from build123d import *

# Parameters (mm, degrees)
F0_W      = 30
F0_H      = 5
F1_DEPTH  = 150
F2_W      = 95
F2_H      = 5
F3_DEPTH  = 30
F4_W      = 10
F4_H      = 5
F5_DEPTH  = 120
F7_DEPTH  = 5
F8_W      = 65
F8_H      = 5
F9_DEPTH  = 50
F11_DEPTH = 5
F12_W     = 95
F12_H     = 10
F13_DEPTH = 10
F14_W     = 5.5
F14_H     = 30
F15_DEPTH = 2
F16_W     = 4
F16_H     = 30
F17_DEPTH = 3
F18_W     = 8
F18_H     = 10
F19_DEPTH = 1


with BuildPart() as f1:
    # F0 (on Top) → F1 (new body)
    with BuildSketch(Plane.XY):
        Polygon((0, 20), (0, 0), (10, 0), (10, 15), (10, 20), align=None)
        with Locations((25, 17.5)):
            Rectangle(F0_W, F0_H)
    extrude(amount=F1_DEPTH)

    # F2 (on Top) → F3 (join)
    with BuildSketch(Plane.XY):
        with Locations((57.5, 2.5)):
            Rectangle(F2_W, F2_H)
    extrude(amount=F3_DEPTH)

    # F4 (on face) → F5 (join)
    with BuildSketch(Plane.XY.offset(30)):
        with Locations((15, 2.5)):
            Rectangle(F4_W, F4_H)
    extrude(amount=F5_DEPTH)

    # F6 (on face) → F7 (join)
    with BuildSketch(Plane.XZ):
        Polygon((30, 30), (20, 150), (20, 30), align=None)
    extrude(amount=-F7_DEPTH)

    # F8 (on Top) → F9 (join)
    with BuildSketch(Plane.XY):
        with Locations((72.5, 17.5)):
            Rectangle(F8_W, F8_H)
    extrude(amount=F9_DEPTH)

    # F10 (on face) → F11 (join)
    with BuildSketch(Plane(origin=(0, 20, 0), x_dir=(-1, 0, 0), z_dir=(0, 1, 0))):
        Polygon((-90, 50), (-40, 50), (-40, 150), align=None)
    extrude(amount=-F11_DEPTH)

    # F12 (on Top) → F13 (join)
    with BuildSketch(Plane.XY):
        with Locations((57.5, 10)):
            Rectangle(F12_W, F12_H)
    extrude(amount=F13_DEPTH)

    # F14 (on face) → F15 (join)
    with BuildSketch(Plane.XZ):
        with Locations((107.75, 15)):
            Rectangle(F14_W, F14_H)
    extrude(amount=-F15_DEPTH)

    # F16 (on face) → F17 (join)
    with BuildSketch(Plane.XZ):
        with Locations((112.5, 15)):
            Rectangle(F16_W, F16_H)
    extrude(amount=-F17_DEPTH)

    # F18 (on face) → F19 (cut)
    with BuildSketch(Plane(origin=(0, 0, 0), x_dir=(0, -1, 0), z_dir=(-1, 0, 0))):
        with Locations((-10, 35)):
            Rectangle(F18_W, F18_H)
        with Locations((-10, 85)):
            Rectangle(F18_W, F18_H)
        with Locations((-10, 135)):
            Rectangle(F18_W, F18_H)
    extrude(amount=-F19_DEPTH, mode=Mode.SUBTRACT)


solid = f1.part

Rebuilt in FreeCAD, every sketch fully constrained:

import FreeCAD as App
import Part
import Sketcher
Q = App.Units.Quantity


def add_polygon(sketch, points):
    """Adds a closed chain of lines whose ends are joined by coincident constraints."""
    first, n = sketch.GeometryCount, len(points)
    for a, b in zip(points, points[1:] + points[:1]):
        sketch.addGeometry(Part.LineSegment(App.Vector(*a, 0), App.Vector(*b, 0)), False)
    for i in range(n):
        sketch.addConstraint(Sketcher.Constraint("Coincident", first + i, 2, first + (i + 1) % n, 1))

doc = App.newDocument("Part")
params = doc.addObject("Spreadsheet::Sheet", "Params")
for row, (alias, value) in enumerate([
    ("sketch1_width", "10 mm"),
    ("sketch1_width2", "30 mm"),
    ("sketch1_height", "20 mm"),
    ("sketch1_height2", "15 mm"),
    ("pad1_length", "150 mm"),
    ("sketch2_width", "95 mm"),
    ("sketch2_height", "5 mm"),
    ("pad2_length", "30 mm"),
    ("sketch3_width", "10 mm"),
    ("sketch3_height", "5 mm"),
    ("pad3_length", "120 mm"),
    ("sketch4_width", "10 mm"),
    ("sketch4_height", "120 mm"),
    ("pad4_length", "5 mm"),
    ("sketch5_width", "65 mm"),
    ("sketch5_height", "5 mm"),
    ("pad5_length", "50 mm"),
    ("sketch6_width", "50 mm"),
    ("sketch6_height", "100 mm"),
    ("pad6_length", "5 mm"),
    ("sketch7_width", "95 mm"),
    ("sketch7_height", "10 mm"),
    ("pad7_length", "10 mm"),
    ("sketch8_height", "30 mm"),
    ("sketch8_width", "5.5 mm"),
    ("pad8_length", "2 mm"),
    ("sketch9_width", "4 mm"),
    ("sketch9_height", "30 mm"),
    ("pad9_length", "3 mm"),
    ("sketch10_width", "8 mm"),
    ("sketch10_height", "10 mm"),
    ("pocket1_length", "1 mm"),
], start=1):
    params.set(f"A{row}", alias)
    params.set(f"B{row}", "=" + value)
    params.setAlias(f"B{row}", alias)

body = doc.addObject("PartDesign::Body", "Body")

sketch1 = doc.addObject("Sketcher::SketchObject", "Sketch")
body.addObject(sketch1)
sketch1.AttachmentSupport = (doc.XY_Plane, [""])
sketch1.MapMode = "FlatFace"
add_polygon(sketch1, [(0, 20), (0, 0), (10, 0), (10, 15), (40, 15), (40, 20)])
sketch1.addConstraint(Sketcher.Constraint("Vertical", 0))
sketch1.addConstraint(Sketcher.Constraint("Horizontal", 1))
sketch1.addConstraint(Sketcher.Constraint("Vertical", 2))
sketch1.addConstraint(Sketcher.Constraint("Horizontal", 3))
sketch1.addConstraint(Sketcher.Constraint("Vertical", 4))
sketch1.addConstraint(Sketcher.Constraint("Horizontal", 5))
sketch1.addConstraint(Sketcher.Constraint("Coincident", 0, 2, -1, 1))
sketch1.addConstraint(Sketcher.Constraint("DistanceX", 1, 1, 1, 2, Q("10 mm")))
sketch1.addConstraint(Sketcher.Constraint("DistanceX", 3, 1, 3, 2, Q("30 mm")))
sketch1.addConstraint(Sketcher.Constraint("DistanceY", 0, 2, 0, 1, Q("20 mm")))
sketch1.addConstraint(Sketcher.Constraint("DistanceY", 2, 1, 2, 2, Q("15 mm")))
sketch1.setExpression("Constraints[13]", "Params.sketch1_width")
sketch1.setExpression("Constraints[14]", "Params.sketch1_width2")
sketch1.setExpression("Constraints[15]", "Params.sketch1_height")
sketch1.setExpression("Constraints[16]", "Params.sketch1_height2")
pad1 = doc.addObject("PartDesign::Pad", "Pad")
body.addObject(pad1)
pad1.Profile = sketch1
pad1.setExpression("Length", "Params.pad1_length")

sketch2 = doc.addObject("Sketcher::SketchObject", "Sketch001")
body.addObject(sketch2)
sketch2.AttachmentSupport = (doc.XY_Plane, [""])
sketch2.MapMode = "FlatFace"
add_polygon(sketch2, [(10, 5), (10, 0), (105, 0), (105, 5)])
sketch2.addConstraint(Sketcher.Constraint("Vertical", 0))
sketch2.addConstraint(Sketcher.Constraint("Horizontal", 1))
sketch2.addConstraint(Sketcher.Constraint("Vertical", 2))
sketch2.addConstraint(Sketcher.Constraint("Horizontal", 3))
sketch2.addConstraint(Sketcher.Constraint("PointOnObject", 0, 2, -1))
sketch2.addConstraint(Sketcher.Constraint("DistanceX", 1, 1, 1, 2, Q("95 mm")))
sketch2.addConstraint(Sketcher.Constraint("DistanceY", 0, 2, 0, 1, Q("5 mm")))
sketch2.addConstraint(Sketcher.Constraint("DistanceX", -1, 1, 0, 2, Q("10 mm")))
sketch2.setExpression("Constraints[9]", "Params.sketch2_width")
sketch2.setExpression("Constraints[10]", "Params.sketch2_height")
pad2 = doc.addObject("PartDesign::Pad", "Pad001")
body.addObject(pad2)
pad2.Profile = sketch2
pad2.setExpression("Length", "Params.pad2_length")

sketch3 = doc.addObject("Sketcher::SketchObject", "Sketch002")
body.addObject(sketch3)
sketch3.AttachmentSupport = (doc.XY_Plane, [""])
sketch3.MapMode = "FlatFace"
sketch3.AttachmentOffset = App.Placement(App.Vector(0, 0, 30), App.Rotation())
add_polygon(sketch3, [(10, 5), (10, 0), (20, 0), (20, 5)])
sketch3.addConstraint(Sketcher.Constraint("Vertical", 0))
sketch3.addConstraint(Sketcher.Constraint("Horizontal", 1))
sketch3.addConstraint(Sketcher.Constraint("Vertical", 2))
sketch3.addConstraint(Sketcher.Constraint("Horizontal", 3))
sketch3.addConstraint(Sketcher.Constraint("PointOnObject", 0, 2, -1))
sketch3.addConstraint(Sketcher.Constraint("DistanceX", 1, 1, 1, 2, Q("10 mm")))
sketch3.addConstraint(Sketcher.Constraint("DistanceY", 0, 2, 0, 1, Q("5 mm")))
sketch3.addConstraint(Sketcher.Constraint("DistanceX", -1, 1, 0, 2, Q("10 mm")))
sketch3.setExpression("Constraints[9]", "Params.sketch3_width")
sketch3.setExpression("Constraints[10]", "Params.sketch3_height")
pad3 = doc.addObject("PartDesign::Pad", "Pad002")
body.addObject(pad3)
pad3.Profile = sketch3
pad3.setExpression("Length", "Params.pad3_length")

sketch4 = doc.addObject("Sketcher::SketchObject", "Sketch003")
body.addObject(sketch4)
sketch4.AttachmentSupport = (doc.XZ_Plane, [""])
sketch4.MapMode = "FlatFace"
add_polygon(sketch4, [(30, 30), (20, 150), (20, 30)])
sketch4.addConstraint(Sketcher.Constraint("Vertical", 1))
sketch4.addConstraint(Sketcher.Constraint("Horizontal", 2))
sketch4.addConstraint(Sketcher.Constraint("DistanceX", 2, 1, 2, 2, Q("10 mm")))
sketch4.addConstraint(Sketcher.Constraint("DistanceY", 1, 2, 1, 1, Q("120 mm")))
sketch4.addConstraint(Sketcher.Constraint("DistanceX", -1, 1, 0, 2, Q("20 mm")))
sketch4.addConstraint(Sketcher.Constraint("DistanceY", -1, 1, 0, 2, Q("150 mm")))
sketch4.setExpression("Constraints[5]", "Params.sketch4_width")
sketch4.setExpression("Constraints[6]", "Params.sketch4_height")
pad4 = doc.addObject("PartDesign::Pad", "Pad003")
body.addObject(pad4)
pad4.Profile = sketch4
pad4.setExpression("Length", "Params.pad4_length")
pad4.Reversed = True

sketch5 = doc.addObject("Sketcher::SketchObject", "Sketch004")
body.addObject(sketch5)
sketch5.AttachmentSupport = (doc.XY_Plane, [""])
sketch5.MapMode = "FlatFace"
add_polygon(sketch5, [(40, 20), (40, 15), (105, 15), (105, 20)])
sketch5.addConstraint(Sketcher.Constraint("Vertical", 0))
sketch5.addConstraint(Sketcher.Constraint("Horizontal", 1))
sketch5.addConstraint(Sketcher.Constraint("Vertical", 2))
sketch5.addConstraint(Sketcher.Constraint("Horizontal", 3))
sketch5.addConstraint(Sketcher.Constraint("DistanceX", 1, 1, 1, 2, Q("65 mm")))
sketch5.addConstraint(Sketcher.Constraint("DistanceY", 0, 2, 0, 1, Q("5 mm")))
sketch5.addConstraint(Sketcher.Constraint("DistanceX", -1, 1, 0, 2, Q("40 mm")))
sketch5.addConstraint(Sketcher.Constraint("DistanceY", -1, 1, 0, 2, Q("15 mm")))
sketch5.setExpression("Constraints[8]", "Params.sketch5_width")
sketch5.setExpression("Constraints[9]", "Params.sketch5_height")
pad5 = doc.addObject("PartDesign::Pad", "Pad004")
body.addObject(pad5)
pad5.Profile = sketch5
pad5.setExpression("Length", "Params.pad5_length")

sketch6 = doc.addObject("Sketcher::SketchObject", "Sketch005")
body.addObject(sketch6)
sketch6.AttachmentSupport = (doc.XZ_Plane, [""])
sketch6.MapMode = "FlatFace"
sketch6.AttachmentOffset = App.Placement(App.Vector(0, 0, -20), App.Rotation())
add_polygon(sketch6, [(90, 50), (40, 50), (40, 150)])
sketch6.addConstraint(Sketcher.Constraint("Horizontal", 0))
sketch6.addConstraint(Sketcher.Constraint("Vertical", 1))
sketch6.addConstraint(Sketcher.Constraint("DistanceX", 0, 2, 0, 1, Q("50 mm")))
sketch6.addConstraint(Sketcher.Constraint("DistanceY", 1, 1, 1, 2, Q("100 mm")))
sketch6.addConstraint(Sketcher.Constraint("DistanceX", -1, 1, 0, 2, Q("40 mm")))
sketch6.addConstraint(Sketcher.Constraint("DistanceY", -1, 1, 0, 2, Q("50 mm")))
sketch6.setExpression("Constraints[5]", "Params.sketch6_width")
sketch6.setExpression("Constraints[6]", "Params.sketch6_height")
pad6 = doc.addObject("PartDesign::Pad", "Pad005")
body.addObject(pad6)
pad6.Profile = sketch6
pad6.setExpression("Length", "Params.pad6_length")

sketch7 = doc.addObject("Sketcher::SketchObject", "Sketch006")
body.addObject(sketch7)
sketch7.AttachmentSupport = (doc.XY_Plane, [""])
sketch7.MapMode = "FlatFace"
add_polygon(sketch7, [(10, 15), (10, 5), (105, 5), (105, 15)])
sketch7.addConstraint(Sketcher.Constraint("Vertical", 0))
sketch7.addConstraint(Sketcher.Constraint("Horizontal", 1))
sketch7.addConstraint(Sketcher.Constraint("Vertical", 2))
sketch7.addConstraint(Sketcher.Constraint("Horizontal", 3))
sketch7.addConstraint(Sketcher.Constraint("DistanceX", 1, 1, 1, 2, Q("95 mm")))
sketch7.addConstraint(Sketcher.Constraint("DistanceY", 0, 2, 0, 1, Q("10 mm")))
sketch7.addConstraint(Sketcher.Constraint("DistanceX", -1, 1, 0, 2, Q("10 mm")))
sketch7.addConstraint(Sketcher.Constraint("DistanceY", -1, 1, 0, 2, Q("5 mm")))
sketch7.setExpression("Constraints[8]", "Params.sketch7_width")
sketch7.setExpression("Constraints[9]", "Params.sketch7_height")
pad7 = doc.addObject("PartDesign::Pad", "Pad006")
body.addObject(pad7)
pad7.Profile = sketch7
pad7.setExpression("Length", "Params.pad7_length")

sketch8 = doc.addObject("Sketcher::SketchObject", "Sketch007")
body.addObject(sketch8)
sketch8.AttachmentSupport = (doc.XZ_Plane, [""])
sketch8.MapMode = "FlatFace"
add_polygon(sketch8, [(105, 30), (105, 0), (110, 0), (110, 30)])
sketch8.addConstraint(Sketcher.Constraint("Vertical", 0))
sketch8.addConstraint(Sketcher.Constraint("Horizontal", 1))
sketch8.addConstraint(Sketcher.Constraint("Vertical", 2))
sketch8.addConstraint(Sketcher.Constraint("Horizontal", 3))
sketch8.addConstraint(Sketcher.Constraint("PointOnObject", 0, 2, -1))
sketch8.addConstraint(Sketcher.Constraint("DistanceY", 0, 2, 0, 1, Q("30 mm")))
sketch8.addConstraint(Sketcher.Constraint("DistanceX", 1, 1, 1, 2, Q("5.5 mm")))
sketch8.addConstraint(Sketcher.Constraint("DistanceX", -1, 1, 0, 2, Q("105 mm")))
sketch8.setExpression("Constraints[9]", "Params.sketch8_height")
sketch8.setExpression("Constraints[10]", "Params.sketch8_width")
pad8 = doc.addObject("PartDesign::Pad", "Pad007")
body.addObject(pad8)
pad8.Profile = sketch8
pad8.setExpression("Length", "Params.pad8_length")
pad8.Reversed = True

sketch9 = doc.addObject("Sketcher::SketchObject", "Sketch008")
body.addObject(sketch9)
sketch9.AttachmentSupport = (doc.XZ_Plane, [""])
sketch9.MapMode = "FlatFace"
add_polygon(sketch9, [(110.5, 30), (110.5, 0), (114.5, 0), (114.5, 30)])
sketch9.addConstraint(Sketcher.Constraint("Vertical", 0))
sketch9.addConstraint(Sketcher.Constraint("Horizontal", 1))
sketch9.addConstraint(Sketcher.Constraint("Vertical", 2))
sketch9.addConstraint(Sketcher.Constraint("Horizontal", 3))
sketch9.addConstraint(Sketcher.Constraint("PointOnObject", 0, 2, -1))
sketch9.addConstraint(Sketcher.Constraint("DistanceX", 1, 1, 1, 2, Q("4 mm")))
sketch9.addConstraint(Sketcher.Constraint("DistanceY", 0, 2, 0, 1, Q("30 mm")))
sketch9.addConstraint(Sketcher.Constraint("DistanceX", -1, 1, 0, 2, Q("110.5 mm")))
sketch9.setExpression("Constraints[9]", "Params.sketch9_width")
sketch9.setExpression("Constraints[10]", "Params.sketch9_height")
pad9 = doc.addObject("PartDesign::Pad", "Pad008")
body.addObject(pad9)
pad9.Profile = sketch9
pad9.setExpression("Length", "Params.pad9_length")
pad9.Reversed = True

sketch10 = doc.addObject("Sketcher::SketchObject", "Sketch009")
body.addObject(sketch10)
sketch10.AttachmentSupport = (doc.YZ_Plane, [""])
sketch10.MapMode = "FlatFace"
add_polygon(sketch10, [(14, 40), (14, 30), (6, 30), (6, 40)])
add_polygon(sketch10, [(14, 90), (14, 80), (6, 80), (6, 90)])
add_polygon(sketch10, [(14, 140), (14, 130), (6, 130), (6, 140)])
sketch10.addConstraint(Sketcher.Constraint("Vertical", 0))
sketch10.addConstraint(Sketcher.Constraint("Horizontal", 1))
sketch10.addConstraint(Sketcher.Constraint("Vertical", 2))
sketch10.addConstraint(Sketcher.Constraint("Horizontal", 3))
sketch10.addConstraint(Sketcher.Constraint("Vertical", 4))
sketch10.addConstraint(Sketcher.Constraint("Horizontal", 5))
sketch10.addConstraint(Sketcher.Constraint("Vertical", 6))
sketch10.addConstraint(Sketcher.Constraint("Horizontal", 7))
sketch10.addConstraint(Sketcher.Constraint("Vertical", 8))
sketch10.addConstraint(Sketcher.Constraint("Horizontal", 9))
sketch10.addConstraint(Sketcher.Constraint("Vertical", 10))
sketch10.addConstraint(Sketcher.Constraint("Horizontal", 11))
sketch10.addConstraint(Sketcher.Constraint("Vertical", 3, 2, 4, 2))
sketch10.addConstraint(Sketcher.Constraint("Vertical", 2, 2, 5, 2))
sketch10.addConstraint(Sketcher.Constraint("Vertical", 7, 2, 8, 2))
sketch10.addConstraint(Sketcher.Constraint("Vertical", 6, 2, 9, 2))
sketch10.addConstraint(Sketcher.Constraint("Equal", 2, 4))
sketch10.addConstraint(Sketcher.Constraint("Equal", 6, 8))
sketch10.addConstraint(Sketcher.Constraint("DistanceX", 1, 2, 1, 1, Q("8 mm")))
sketch10.addConstraint(Sketcher.Constraint("DistanceY", 0, 2, 0, 1, Q("10 mm")))
sketch10.addConstraint(Sketcher.Constraint("DistanceX", -1, 1, 0, 2, Q("14 mm")))
sketch10.addConstraint(Sketcher.Constraint("DistanceY", -1, 1, 0, 2, Q("30 mm")))
sketch10.addConstraint(Sketcher.Constraint("DistanceY", -1, 1, 4, 2, Q("80 mm")))
sketch10.addConstraint(Sketcher.Constraint("DistanceY", -1, 1, 8, 2, Q("130 mm")))
sketch10.setExpression("Constraints[30]", "Params.sketch10_width")
sketch10.setExpression("Constraints[31]", "Params.sketch10_height")
pocket1 = doc.addObject("PartDesign::Pocket", "Pocket")
body.addObject(pocket1)
pocket1.Profile = sketch10
pocket1.setExpression("Length", "Params.pocket1_length")
pocket1.Reversed = True

doc.recompute()
